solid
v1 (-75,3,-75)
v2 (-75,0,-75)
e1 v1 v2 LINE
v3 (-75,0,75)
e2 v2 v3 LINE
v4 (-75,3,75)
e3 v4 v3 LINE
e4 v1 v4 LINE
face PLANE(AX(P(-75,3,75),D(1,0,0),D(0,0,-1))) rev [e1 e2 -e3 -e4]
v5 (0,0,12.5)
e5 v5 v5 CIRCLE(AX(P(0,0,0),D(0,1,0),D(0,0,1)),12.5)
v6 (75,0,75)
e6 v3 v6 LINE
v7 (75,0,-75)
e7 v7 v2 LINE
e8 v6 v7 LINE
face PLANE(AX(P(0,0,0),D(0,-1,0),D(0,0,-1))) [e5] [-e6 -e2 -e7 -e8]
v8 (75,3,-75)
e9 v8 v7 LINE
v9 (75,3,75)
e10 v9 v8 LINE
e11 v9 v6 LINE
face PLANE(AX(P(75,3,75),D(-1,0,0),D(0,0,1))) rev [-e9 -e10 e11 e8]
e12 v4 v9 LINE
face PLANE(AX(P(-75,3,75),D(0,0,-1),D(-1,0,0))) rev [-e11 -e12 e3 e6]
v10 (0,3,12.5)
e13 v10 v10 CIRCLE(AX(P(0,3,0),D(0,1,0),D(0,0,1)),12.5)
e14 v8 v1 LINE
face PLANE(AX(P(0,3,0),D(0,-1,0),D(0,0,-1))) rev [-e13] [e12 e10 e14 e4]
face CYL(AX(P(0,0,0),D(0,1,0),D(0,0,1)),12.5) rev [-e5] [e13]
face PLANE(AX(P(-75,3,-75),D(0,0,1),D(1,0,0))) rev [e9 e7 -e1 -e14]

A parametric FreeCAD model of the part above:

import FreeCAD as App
import Part
import Sketcher
from FreeCAD import Vector
Q = App.Units.Quantity


def add_polygon(sketch, points):
    """Adds a closed chain of lines whose ends are joined by coincident constraints."""
    first, n = sketch.GeometryCount, len(points)
    for a, b in zip(points, points[1:] + points[:1]):
        sketch.addGeometry(Part.LineSegment(App.Vector(*a, 0), App.Vector(*b, 0)), False)
    for i in range(n):
        sketch.addConstraint(Sketcher.Constraint("Coincident", first + i, 2, first + (i + 1) % n, 1))

doc = App.newDocument("Part")
params = doc.addObject("Spreadsheet::Sheet", "Params")
for row, (alias, value) in enumerate([
    ("sketch1_width", "150 mm"),
    ("pad1_length", "3 mm"),
    ("sketch2_diameter", "25 mm"),
    ("pocket1_length", "3 mm"),
], start=1):
    params.set(f"A{row}", alias)
    params.set(f"B{row}", "=" + value)
    params.setAlias(f"B{row}", alias)

body = doc.addObject("PartDesign::Body", "Body")

# Sketch on XZ plane
sketch1 = doc.addObject("Sketcher::SketchObject", "Sketch")
body.addObject(sketch1)
sketch1.AttachmentSupport = (doc.XZ_Plane, [""])
sketch1.MapMode = "FlatFace"
add_polygon(sketch1, [(-75, -75), (-75, 75), (75, 75), (75, -75)])  # lines 0-3
sketch1.addConstraint(Sketcher.Constraint("Vertical", 0))
sketch1.addConstraint(Sketcher.Constraint("Horizontal", 1))
sketch1.addConstraint(Sketcher.Constraint("Vertical", 2))
sketch1.addConstraint(Sketcher.Constraint("Horizontal", 3))
sketch1.addConstraint(Sketcher.Constraint("Symmetric", 0, 2, 2, 2, -1, 1))
sketch1.addConstraint(Sketcher.Constraint("Equal", 3, 0))
sketch1.addConstraint(Sketcher.Constraint("DistanceX", 1, 1, 1, 2, Q("150 mm")))
sketch1.setExpression("Constraints[10]", "Params.sketch1_width")
pad1 = doc.addObject("PartDesign::Pad", "Pad")
body.addObject(pad1)
pad1.Profile = sketch1
pad1.setExpression("Length", "Params.pad1_length")
pad1.Reversed = True

# Sketch on XZ plane
sketch2 = doc.addObject("Sketcher::SketchObject", "Sketch001")
body.addObject(sketch2)
sketch2.AttachmentSupport = (doc.XZ_Plane, [""])
sketch2.MapMode = "FlatFace"
sketch2.AttachmentOffset = App.Placement(Vector(0, 0, -3), App.Rotation())
sketch2.addGeometry(Part.Circle(Vector(0, 0, 0), Vector(0, 0, 1), 12), False)
sketch2.addConstraint(Sketcher.Constraint("Coincident", 0, 3, -1, 1))
sketch2.addConstraint(Sketcher.Constraint("Diameter", 0, Q("25 mm")))
sketch2.setExpression("Constraints[1]", "Params.sketch2_diameter")
pocket1 = doc.addObject("PartDesign::Pocket", "Pocket")
body.addObject(pocket1)
pocket1.Profile = sketch2
pocket1.setExpression("Length", "Params.pocket1_length")
pocket1.Reversed = True

doc.recompute()
